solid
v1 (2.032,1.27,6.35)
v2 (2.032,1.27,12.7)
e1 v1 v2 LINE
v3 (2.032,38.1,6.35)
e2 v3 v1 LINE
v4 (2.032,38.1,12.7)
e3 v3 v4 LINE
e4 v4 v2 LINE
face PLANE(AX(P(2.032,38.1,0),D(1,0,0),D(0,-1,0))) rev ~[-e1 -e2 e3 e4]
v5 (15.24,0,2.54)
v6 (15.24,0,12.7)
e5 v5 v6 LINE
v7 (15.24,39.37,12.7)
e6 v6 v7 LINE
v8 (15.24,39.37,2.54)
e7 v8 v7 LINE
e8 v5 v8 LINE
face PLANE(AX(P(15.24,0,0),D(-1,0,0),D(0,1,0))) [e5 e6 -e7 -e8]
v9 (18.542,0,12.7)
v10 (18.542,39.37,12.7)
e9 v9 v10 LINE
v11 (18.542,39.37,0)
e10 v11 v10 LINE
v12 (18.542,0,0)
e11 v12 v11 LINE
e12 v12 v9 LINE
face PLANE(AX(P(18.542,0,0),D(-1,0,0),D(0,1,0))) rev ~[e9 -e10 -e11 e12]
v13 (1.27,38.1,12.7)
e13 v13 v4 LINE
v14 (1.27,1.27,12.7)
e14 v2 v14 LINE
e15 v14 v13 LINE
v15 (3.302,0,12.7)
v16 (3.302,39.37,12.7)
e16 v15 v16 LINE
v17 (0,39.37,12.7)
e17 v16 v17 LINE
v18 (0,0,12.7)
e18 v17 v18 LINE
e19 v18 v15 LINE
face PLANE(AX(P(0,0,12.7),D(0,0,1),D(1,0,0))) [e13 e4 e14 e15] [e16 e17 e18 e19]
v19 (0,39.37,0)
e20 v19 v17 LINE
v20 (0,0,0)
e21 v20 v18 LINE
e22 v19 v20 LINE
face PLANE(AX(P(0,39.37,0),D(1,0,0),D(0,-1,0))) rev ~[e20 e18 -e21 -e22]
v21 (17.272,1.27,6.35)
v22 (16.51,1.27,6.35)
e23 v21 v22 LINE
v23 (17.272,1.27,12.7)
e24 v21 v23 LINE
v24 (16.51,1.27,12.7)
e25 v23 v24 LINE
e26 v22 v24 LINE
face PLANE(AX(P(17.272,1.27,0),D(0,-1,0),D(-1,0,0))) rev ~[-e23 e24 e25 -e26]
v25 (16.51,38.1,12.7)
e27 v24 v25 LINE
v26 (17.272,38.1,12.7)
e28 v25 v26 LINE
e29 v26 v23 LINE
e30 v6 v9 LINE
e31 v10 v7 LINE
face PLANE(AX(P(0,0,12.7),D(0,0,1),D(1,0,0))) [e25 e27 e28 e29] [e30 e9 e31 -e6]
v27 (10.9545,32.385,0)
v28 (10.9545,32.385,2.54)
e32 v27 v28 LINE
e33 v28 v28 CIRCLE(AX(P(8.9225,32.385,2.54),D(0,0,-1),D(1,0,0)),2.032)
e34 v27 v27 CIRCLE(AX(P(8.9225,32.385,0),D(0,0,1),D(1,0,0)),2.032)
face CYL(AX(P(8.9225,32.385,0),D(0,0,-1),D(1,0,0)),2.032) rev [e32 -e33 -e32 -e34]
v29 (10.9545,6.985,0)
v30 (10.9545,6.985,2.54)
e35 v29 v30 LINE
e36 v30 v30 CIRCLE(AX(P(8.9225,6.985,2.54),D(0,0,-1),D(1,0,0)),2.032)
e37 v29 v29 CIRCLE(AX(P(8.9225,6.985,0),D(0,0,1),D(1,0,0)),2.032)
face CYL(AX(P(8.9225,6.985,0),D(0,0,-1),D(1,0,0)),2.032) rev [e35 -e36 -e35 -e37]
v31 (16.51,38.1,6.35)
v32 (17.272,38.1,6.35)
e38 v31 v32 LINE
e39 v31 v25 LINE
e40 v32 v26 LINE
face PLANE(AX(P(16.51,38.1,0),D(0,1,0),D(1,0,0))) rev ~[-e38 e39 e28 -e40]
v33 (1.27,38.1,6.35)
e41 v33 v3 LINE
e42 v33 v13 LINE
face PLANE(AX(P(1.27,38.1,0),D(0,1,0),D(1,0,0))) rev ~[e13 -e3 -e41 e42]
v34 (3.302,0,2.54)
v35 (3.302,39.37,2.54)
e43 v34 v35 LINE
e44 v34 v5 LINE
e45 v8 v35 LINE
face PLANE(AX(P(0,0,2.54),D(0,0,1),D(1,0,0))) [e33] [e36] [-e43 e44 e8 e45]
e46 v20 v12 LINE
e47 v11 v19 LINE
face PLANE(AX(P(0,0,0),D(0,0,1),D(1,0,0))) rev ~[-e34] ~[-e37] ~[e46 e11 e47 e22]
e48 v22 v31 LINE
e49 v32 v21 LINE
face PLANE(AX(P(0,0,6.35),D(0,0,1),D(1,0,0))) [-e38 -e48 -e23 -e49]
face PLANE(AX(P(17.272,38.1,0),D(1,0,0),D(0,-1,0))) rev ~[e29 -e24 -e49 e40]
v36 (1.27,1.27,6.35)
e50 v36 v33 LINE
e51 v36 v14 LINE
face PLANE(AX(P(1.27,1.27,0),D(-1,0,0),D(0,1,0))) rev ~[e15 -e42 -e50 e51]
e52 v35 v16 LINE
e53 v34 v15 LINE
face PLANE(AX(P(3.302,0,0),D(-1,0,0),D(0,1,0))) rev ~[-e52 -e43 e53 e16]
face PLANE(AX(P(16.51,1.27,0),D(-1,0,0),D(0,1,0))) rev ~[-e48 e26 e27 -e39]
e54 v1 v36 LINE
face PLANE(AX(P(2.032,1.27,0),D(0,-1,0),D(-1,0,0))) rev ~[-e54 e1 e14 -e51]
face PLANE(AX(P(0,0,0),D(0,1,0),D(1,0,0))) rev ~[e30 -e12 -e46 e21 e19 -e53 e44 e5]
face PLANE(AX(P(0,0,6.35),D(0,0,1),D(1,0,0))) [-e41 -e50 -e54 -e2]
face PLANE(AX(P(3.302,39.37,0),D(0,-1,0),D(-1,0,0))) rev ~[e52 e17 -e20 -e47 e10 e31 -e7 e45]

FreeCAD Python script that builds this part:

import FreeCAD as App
import Part
import Sketcher
Q = App.Units.Quantity


def add_polygon(sketch, points):
    """Adds a closed chain of lines whose ends are joined by coincident constraints."""
    first, n = sketch.GeometryCount, len(points)
    for a, b in zip(points, points[1:] + points[:1]):
        sketch.addGeometry(Part.LineSegment(App.Vector(*a, 0), App.Vector(*b, 0)), False)
    for i in range(n):
        sketch.addConstraint(Sketcher.Constraint("Coincident", first + i, 2, first + (i + 1) % n, 1))

doc = App.newDocument("Part")
body = doc.addObject("PartDesign::Body", "Body")

sketch1 = body.newObject("Sketcher::SketchObject", "Sketch")
sketch1.AttachmentSupport = (doc.getObject("XY_Plane"), [""])
sketch1.MapMode = "FlatFace"
add_polygon(sketch1, [(3, 39), (3, 0), (15, 0), (15, 39)])
sketch1.addConstraint([
    Sketcher.Constraint("Vertical", 0),
    Sketcher.Constraint("Horizontal", 1),
    Sketcher.Constraint("Vertical", 2),
    Sketcher.Constraint("Horizontal", 3),
    Sketcher.Constraint("PointOnObject", 0, 2, -1),
    Sketcher.Constraint("DistanceY", 0, 2, 0, 1, Q("1.55 in")),
    Sketcher.Constraint("DistanceX", -1, 1, 0, 2, Q("0.13 in")),
    Sketcher.Constraint("DistanceX", 1, 1, 1, 2, Q("0.47 in")),
])
pad1 = body.newObject("PartDesign::Pad", "Pad")
pad1.Profile = sketch1
pad1.Length = Q("0.1 in")

sketch2 = body.newObject("Sketcher::SketchObject", "Sketch001")
sketch2.AttachmentSupport = (doc.getObject("XY_Plane"), [""])
sketch2.MapMode = "FlatFace"
add_polygon(sketch2, [(15.2, 39.4), (15.2, 0), (18.5, 0), (18.5, 39.4)])
add_polygon(sketch2, [(16.5, 1.3), (16.5, 38.1), (17.3, 38.1), (17.3, 1.3)])
sketch2.addConstraint([
    Sketcher.Constraint("Vertical", 0),
    Sketcher.Constraint("Horizontal", 1),
    Sketcher.Constraint("Vertical", 2),
    Sketcher.Constraint("Horizontal", 3),
    Sketcher.Constraint("Vertical", 4),
    Sketcher.Constraint("Horizontal", 5),
    Sketcher.Constraint("Vertical", 6),
    Sketcher.Constraint("Horizontal", 7),
    Sketcher.Constraint("PointOnObject", 0, 2, -1),
    Sketcher.Constraint("DistanceX", 1, 1, 1, 2, Q("0.13 in")),
    Sketcher.Constraint("DistanceX", 5, 1, 5, 2, Q("0.03 in")),
    Sketcher.Constraint("DistanceY", 0, 2, 0, 1, Q("1.55 in")),
    Sketcher.Constraint("DistanceY", 4, 1, 4, 2, Q("1.45 in")),
    Sketcher.Constraint("DistanceX", -1, 1, 1, 2, Q("0.73 in")),
    Sketcher.Constraint("DistanceY", -1, 1, 6, 2, Q("0.05 in")),
    Sketcher.Constraint("DistanceX", 3, 2, 4, 2, Q("0.05 in")),
])
pad2 = body.newObject("PartDesign::Pad", "Pad001")
pad2.Profile = sketch2
pad2.Length = Q("0.5 in")

sketch3 = body.newObject("Sketcher::SketchObject", "Sketch002")
sketch3.AttachmentSupport = (doc.getObject("XY_Plane"), [""])
sketch3.MapMode = "FlatFace"
add_polygon(sketch3, [(0, 39.4), (0, 0), (3.3, 0), (3.3, 39.4)])
add_polygon(sketch3, [(1.3, 1.3), (1.3, 38.1), (2, 38.1), (2, 1.3)])
sketch3.addConstraint([
    Sketcher.Constraint("Vertical", 0),
    Sketcher.Constraint("Horizontal", 1),
    Sketcher.Constraint("Vertical", 2),
    Sketcher.Constraint("Horizontal", 3),
    Sketcher.Constraint("Vertical", 4),
    Sketcher.Constraint("Horizontal", 5),
    Sketcher.Constraint("Vertical", 6),
    Sketcher.Constraint("Horizontal", 7),
    Sketcher.Constraint("Coincident", 0, 2, -1, 1),
    Sketcher.Constraint("DistanceX", 1, 1, 1, 2, Q("0.13 in")),
    Sketcher.Constraint("DistanceX", 5, 1, 5, 2, Q("0.03 in")),
    Sketcher.Constraint("DistanceY", 0, 2, 0, 1, Q("1.55 in")),
    Sketcher.Constraint("DistanceY", 4, 1, 4, 2, Q("1.45 in")),
    Sketcher.Constraint("DistanceX", -1, 1, 4, 2, Q("0.05 in")),
    Sketcher.Constraint("DistanceY", -1, 1, 6, 2, Q("0.05 in")),
])
pad3 = body.newObject("PartDesign::Pad", "Pad002")
pad3.Profile = sketch3
pad3.Length = Q("0.5 in")

sketch4 = body.newObject("Sketcher::SketchObject", "Sketch003")
sketch4.AttachmentSupport = (doc.getObject("XY_Plane"), [""])
sketch4.MapMode = "FlatFace"
add_polygon(sketch4, [(17.3, 38.1), (16.5, 38.1), (16.5, 1.3), (17.3, 1.3)])
sketch4.addConstraint([
    Sketcher.Constraint("Horizontal", 0),
    Sketcher.Constraint("Vertical", 1),
    Sketcher.Constraint("Horizontal", 2),
    Sketcher.Constraint("Vertical", 3),
    Sketcher.Constraint("DistanceX", 0, 2, 0, 1, Q("0.03 in")),
    Sketcher.Constraint("DistanceY", 1, 2, 1, 1, Q("1.45 in")),
    Sketcher.Constraint("DistanceY", -1, 1, 1, 2, Q("0.05 in")),
    Sketcher.Constraint("DistanceX", -1, 1, 0, 2, Q("0.65 in")),
])
pad4 = body.newObject("PartDesign::Pad", "Pad003")
pad4.Profile = sketch4
pad4.Length = Q("0.25 in")

sketch5 = body.newObject("Sketcher::SketchObject", "Sketch004")
sketch5.AttachmentSupport = (doc.getObject("XY_Plane"), [""])
sketch5.MapMode = "FlatFace"
add_polygon(sketch5, [(2, 38.1), (1.3, 38.1), (1.3, 1.3), (2, 1.3)])
sketch5.addConstraint([
    Sketcher.Constraint("Horizontal", 0),
    Sketcher.Constraint("Vertical", 1),
    Sketcher.Constraint("Horizontal", 2),
    Sketcher.Constraint("Vertical", 3),
    Sketcher.Constraint("DistanceX", 0, 2, 0, 1, Q("0.03 in")),
    Sketcher.Constraint("DistanceY", 1, 2, 1, 1, Q("1.45 in")),
    Sketcher.Constraint("DistanceX", -1, 1, 0, 2, Q("0.05 in")),
    Sketcher.Constraint("DistanceY", -1, 1, 1, 2, Q("0.05 in")),
])
pad5 = body.newObject("PartDesign::Pad", "Pad004")
pad5.Profile = sketch5
pad5.Length = Q("0.25 in")

sketch6 = body.newObject("Sketcher::SketchObject", "Sketch005")
sketch6.AttachmentSupport = (doc.getObject("XY_Plane"), [""])
sketch6.MapMode = "FlatFace"
sketch6.addGeometry(Part.Circle(App.Vector(8.9, 32.4, 0), App.Vector(0, 0, 1), 2), False)
sketch6.addConstraint([
    Sketcher.Constraint("Diameter", 0, Q("0.16 in")),
    Sketcher.Constraint("DistanceY", -1, 1, 0, 3, Q("1.275 in")),
    Sketcher.Constraint("DistanceX", -1, 1, 0, 3, 8.9225),
])
pocket1 = body.newObject("PartDesign::Pocket", "Pocket")
pocket1.Profile = sketch6
pocket1.Type = "ThroughAll"
pocket1.Reversed = True

sketch7 = body.newObject("Sketcher::SketchObject", "Sketch006")
sketch7.AttachmentSupport = (doc.getObject("XY_Plane"), [""])
sketch7.MapMode = "FlatFace"
sketch7.addGeometry(Part.Circle(App.Vector(8.9, 7, 0), App.Vector(0, 0, 1), 2), False)
sketch7.addConstraint([
    Sketcher.Constraint("Diameter", 0, Q("0.16 in")),
    Sketcher.Constraint("DistanceY", -1, 1, 0, 3, Q("0.275 in")),
    Sketcher.Constraint("DistanceX", -1, 1, 0, 3, 8.9225),
])
pocket2 = body.newObject("PartDesign::Pocket", "Pocket001")
pocket2.Profile = sketch7
pocket2.Type = "ThroughAll"
pocket2.Reversed = True

doc.recompute()
